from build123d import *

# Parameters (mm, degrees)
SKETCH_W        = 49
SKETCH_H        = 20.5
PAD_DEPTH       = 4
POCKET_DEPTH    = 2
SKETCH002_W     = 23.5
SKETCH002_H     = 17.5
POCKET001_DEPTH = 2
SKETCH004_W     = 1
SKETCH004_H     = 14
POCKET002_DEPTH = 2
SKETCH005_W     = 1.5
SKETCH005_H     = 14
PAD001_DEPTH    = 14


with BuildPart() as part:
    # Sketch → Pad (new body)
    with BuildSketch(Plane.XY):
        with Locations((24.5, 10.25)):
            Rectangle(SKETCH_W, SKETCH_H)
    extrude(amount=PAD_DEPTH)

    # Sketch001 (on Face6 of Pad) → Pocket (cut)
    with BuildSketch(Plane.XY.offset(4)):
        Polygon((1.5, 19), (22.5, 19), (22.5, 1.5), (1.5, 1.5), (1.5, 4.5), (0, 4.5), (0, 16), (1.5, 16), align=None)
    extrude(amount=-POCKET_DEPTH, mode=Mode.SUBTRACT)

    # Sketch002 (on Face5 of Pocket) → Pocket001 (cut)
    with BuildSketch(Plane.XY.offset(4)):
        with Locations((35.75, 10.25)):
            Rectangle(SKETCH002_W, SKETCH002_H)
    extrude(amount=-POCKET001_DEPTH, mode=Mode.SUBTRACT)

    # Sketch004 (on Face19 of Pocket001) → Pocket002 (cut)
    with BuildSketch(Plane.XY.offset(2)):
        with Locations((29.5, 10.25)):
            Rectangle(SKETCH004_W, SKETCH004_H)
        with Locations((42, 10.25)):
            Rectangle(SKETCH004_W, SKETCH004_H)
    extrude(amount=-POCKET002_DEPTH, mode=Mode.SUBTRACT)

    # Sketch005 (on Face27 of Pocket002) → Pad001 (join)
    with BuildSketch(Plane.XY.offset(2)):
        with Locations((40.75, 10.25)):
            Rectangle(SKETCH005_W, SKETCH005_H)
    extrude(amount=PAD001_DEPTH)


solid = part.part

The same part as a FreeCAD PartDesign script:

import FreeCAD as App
import Part
import Sketcher
Q = App.Units.Quantity

doc = App.newDocument("Part")
body = doc.addObject("PartDesign::Body", "Body")

# Sketch on XY plane
sketch1 = doc.addObject("Sketcher::SketchObject", "Sketch")
body.addObject(sketch1)
sketch1.AttachmentSupport = (doc.XY_Plane, [""])
sketch1.MapMode = "FlatFace"
sketch1.addGeometry([
    Part.LineSegment(App.Vector(0, 20, 0), App.Vector(0, 0, 0)),
    Part.LineSegment(App.Vector(0, 0, 0), App.Vector(49, 0, 0)),
    Part.LineSegment(App.Vector(49, 0, 0), App.Vector(49, 20, 0)),
    Part.LineSegment(App.Vector(49, 20, 0), App.Vector(0, 20, 0)),
], False)
sketch1.addConstraint([
    Sketcher.Constraint("Coincident", 0, 2, 1, 1),
    Sketcher.Constraint("Coincident", 1, 2, 2, 1),
    Sketcher.Constraint("Coincident", 2, 2, 3, 1),
    Sketcher.Constraint("Coincident", 3, 2, 0, 1),
    Sketcher.Constraint("Vertical", 0),
    Sketcher.Constraint("Horizontal", 1),
    Sketcher.Constraint("Vertical", 2),
    Sketcher.Constraint("Horizontal", 3),
    Sketcher.Constraint("Coincident", 0, 2, -1, 1),
    Sketcher.Constraint("DistanceX", 1, 1, 1, 2, Q("49 mm")),
    Sketcher.Constraint("DistanceY", 0, 2, 0, 1, Q("20.5 mm")),
])
pad1 = doc.addObject("PartDesign::Pad", "Pad")
body.addObject(pad1)
pad1.Profile = sketch1
pad1.Length = 4

# Sketch on XY plane
sketch2 = doc.addObject("Sketcher::SketchObject", "Sketch001")
body.addObject(sketch2)
sketch2.AttachmentSupport = (doc.XY_Plane, [""])
sketch2.MapMode = "FlatFace"
sketch2.AttachmentOffset = App.Placement(App.Vector(0, 0, 4), App.Rotation())
sketch2.addGeometry([
    Part.LineSegment(App.Vector(22.5, 19, 0), App.Vector(1.5, 19, 0)),  # 0
    Part.LineSegment(App.Vector(1.5, 19, 0), App.Vector(1.5, 16, 0)),  # 1
    Part.LineSegment(App.Vector(1.5, 16, 0), App.Vector(0, 16, 0)),  # 2
    Part.LineSegment(App.Vector(0, 16, 0), App.Vector(0, 4.5, 0)),  # 3
    Part.LineSegment(App.Vector(0, 4.5, 0), App.Vector(1.5, 4.5, 0)),  # 4
    Part.LineSegment(App.Vector(1.5, 4.5, 0), App.Vector(1.5, 1.5, 0)),  # 5
    Part.LineSegment(App.Vector(1.5, 1.5, 0), App.Vector(22.5, 1.5, 0)),  # 6
    Part.LineSegment(App.Vector(22.5, 1.5, 0), App.Vector(22.5, 19, 0)),  # 7
], False)
sketch2.addConstraint([
    Sketcher.Constraint("Coincident", 0, 2, 1, 1),
    Sketcher.Constraint("Coincident", 1, 2, 2, 1),
    Sketcher.Constraint("Coincident", 2, 2, 3, 1),
    Sketcher.Constraint("Coincident", 3, 2, 4, 1),
    Sketcher.Constraint("Coincident", 4, 2, 5, 1),
    Sketcher.Constraint("Coincident", 5, 2, 6, 1),
    Sketcher.Constraint("Coincident", 6, 2, 7, 1),
    Sketcher.Constraint("Coincident", 7, 2, 0, 1),
    Sketcher.Constraint("Horizontal", 0),
    Sketcher.Constraint("Vertical", 1),
    Sketcher.Constraint("Horizontal", 2),
    Sketcher.Constraint("Vertical", 3),
    Sketcher.Constraint("Horizontal", 4),
    Sketcher.Constraint("Vertical", 5),
    Sketcher.Constraint("Horizontal", 6),
    Sketcher.Constraint("Vertical", 7),
    Sketcher.Constraint("PointOnObject", 2, 2, -2),
    Sketcher.Constraint("Vertical", 1, 2, 4, 2),
    Sketcher.Constraint("Equal", 1, 5),
    Sketcher.Constraint("DistanceX", 0, 2, 0, 1, Q("21 mm")),
    Sketcher.Constraint("DistanceY", 1, 2, 1, 1, Q("3 mm")),
    Sketcher.Constraint("DistanceX", 2, 2, 2, 1, Q("1.5 mm")),
    Sketcher.Constraint("DistanceY", 3, 2, 3, 1, Q("11.5 mm")),
    Sketcher.Constraint("DistanceY", -1, 1, 0, 2, Q("19 mm")),
])
pocket1 = doc.addObject("PartDesign::Pocket", "Pocket")
body.addObject(pocket1)
pocket1.Profile = sketch2
pocket1.Length = 2

# Sketch on XY plane
sketch3 = doc.addObject("Sketcher::SketchObject", "Sketch002")
body.addObject(sketch3)
sketch3.AttachmentSupport = (doc.XY_Plane, [""])
sketch3.MapMode = "FlatFace"
sketch3.AttachmentOffset = App.Placement(App.Vector(0, 0, 4), App.Rotation())
sketch3.addGeometry([
    Part.LineSegment(App.Vector(24, 19, 0), App.Vector(24, 2, 0)),
    Part.LineSegment(App.Vector(24, 2, 0), App.Vector(48, 2, 0)),
    Part.LineSegment(App.Vector(48, 2, 0), App.Vector(48, 19, 0)),
    Part.LineSegment(App.Vector(48, 19, 0), App.Vector(24, 19, 0)),
], False)
sketch3.addConstraint([
    Sketcher.Constraint("Coincident", 0, 2, 1, 1),
    Sketcher.Constraint("Coincident", 1, 2, 2, 1),
    Sketcher.Constraint("Coincident", 2, 2, 3, 1),
    Sketcher.Constraint("Coincident", 3, 2, 0, 1),
    Sketcher.Constraint("Vertical", 0),
    Sketcher.Constraint("Horizontal", 1),
    Sketcher.Constraint("Vertical", 2),
    Sketcher.Constraint("Horizontal", 3),
    Sketcher.Constraint("DistanceX", 1, 1, 1, 2, Q("23.5 mm")),
    Sketcher.Constraint("DistanceY", 0, 2, 0, 1, Q("17.5 mm")),
    Sketcher.Constraint("DistanceX", -1, 1, 0, 2, Q("24 mm")),
    Sketcher.Constraint("DistanceY", -1, 1, 2, 2, Q("19 mm")),
])
pocket2 = doc.addObject("PartDesign::Pocket", "Pocket001")
body.addObject(pocket2)
pocket2.Profile = sketch3
pocket2.Length = 2

# Sketch on XY plane
sketch4 = doc.addObject("Sketcher::SketchObject", "Sketch003")
body.addObject(sketch4)
sketch4.AttachmentSupport = (doc.XY_Plane, [""])
sketch4.MapMode = "FlatFace"
sketch4.AttachmentOffset = App.Placement(App.Vector(0, 0, 2), App.Rotation())
sketch4.addGeometry([
    Part.LineSegment(App.Vector(29, 17.2, 0), App.Vector(29, 3.2, 0)),  # 0
    Part.LineSegment(App.Vector(29, 3.2, 0), App.Vector(30, 3.2, 0)),  # 1
    Part.LineSegment(App.Vector(30, 3.2, 0), App.Vector(30, 17.2, 0)),  # 2
    Part.LineSegment(App.Vector(30, 17.2, 0), App.Vector(29, 17.2, 0)),  # 3
    Part.LineSegment(App.Vector(41.5, 17.2, 0), App.Vector(41.5, 3.2, 0)),  # 4
    Part.LineSegment(App.Vector(41.5, 3.2, 0), App.Vector(42.5, 3.2, 0)),  # 5
    Part.LineSegment(App.Vector(42.5, 3.2, 0), App.Vector(42.5, 17.2, 0)),  # 6
    Part.LineSegment(App.Vector(42.5, 17.2, 0), App.Vector(41.5, 17.2, 0)),  # 7
], False)
sketch4.addConstraint([
    Sketcher.Constraint("Coincident", 0, 2, 1, 1),
    Sketcher.Constraint("Coincident", 1, 2, 2, 1),
    Sketcher.Constraint("Coincident", 2, 2, 3, 1),
    Sketcher.Constraint("Coincident", 3, 2, 0, 1),
    Sketcher.Constraint("Coincident", 4, 2, 5, 1),
    Sketcher.Constraint("Coincident", 5, 2, 6, 1),
    Sketcher.Constraint("Coincident", 6, 2, 7, 1),
    Sketcher.Constraint("Coincident", 7, 2, 4, 1),
    Sketcher.Constraint("Vertical", 0),
    Sketcher.Constraint("Horizontal", 1),
    Sketcher.Constraint("Vertical", 2),
    Sketcher.Constraint("Horizontal", 3),
    Sketcher.Constraint("Vertical", 4),
    Sketcher.Constraint("Horizontal", 5),
    Sketcher.Constraint("Vertical", 6),
    Sketcher.Constraint("Horizontal", 7),
    Sketcher.Constraint("Horizontal", 1, 2, 4, 2),
    Sketcher.Constraint("Horizontal", 3, 2, 6, 2),
    Sketcher.Constraint("Equal", 3, 5),
    Sketcher.Constraint("DistanceX", 1, 1, 1, 2, Q("1 mm")),
    Sketcher.Constraint("DistanceY", 0, 2, 0, 1, Q("14 mm")),
    Sketcher.Constraint("DistanceX", -1, 1, 0, 2, Q("29 mm")),
    Sketcher.Constraint("DistanceX", -1, 1, 4, 2, Q("41.5 mm")),
    Sketcher.Constraint("DistanceY", -1, 1, 0, 2, Q("3.25 mm")),
])
pocket3 = doc.addObject("PartDesign::Pocket", "Pocket002")
body.addObject(pocket3)
pocket3.Profile = sketch4
pocket3.Length = 2

# Sketch on XY plane
sketch5 = doc.addObject("Sketcher::SketchObject", "Sketch004")
body.addObject(sketch5)
sketch5.AttachmentSupport = (doc.XY_Plane, [""])
sketch5.MapMode = "FlatFace"
sketch5.AttachmentOffset = App.Placement(App.Vector(0, 0, 2), App.Rotation())
sketch5.addGeometry([
    Part.LineSegment(App.Vector(40, 17.2, 0), App.Vector(40, 3.2, 0)),
    Part.LineSegment(App.Vector(40, 3.2, 0), App.Vector(41.5, 3.2, 0)),
    Part.LineSegment(App.Vector(41.5, 3.2, 0), App.Vector(41.5, 17.2, 0)),
    Part.LineSegment(App.Vector(41.5, 17.2, 0), App.Vector(40, 17.2, 0)),
], False)
sketch5.addConstraint([
    Sketcher.Constraint("Coincident", 0, 2, 1, 1),
    Sketcher.Constraint("Coincident", 1, 2, 2, 1),
    Sketcher.Constraint("Coincident", 2, 2, 3, 1),
    Sketcher.Constraint("Coincident", 3, 2, 0, 1),
    Sketcher.Constraint("Vertical", 0),
    Sketcher.Constraint("Horizontal", 1),
    Sketcher.Constraint("Vertical", 2),
    Sketcher.Constraint("Horizontal", 3),
    Sketcher.Constraint("DistanceY", 0, 2, 0, 1, Q("14 mm")),
    Sketcher.Constraint("DistanceX", 1, 1, 1, 2, Q("1.5 mm")),
    Sketcher.Constraint("DistanceX", -1, 1, 0, 2, Q("40 mm")),
    Sketcher.Constraint("DistanceY", -1, 1, 0, 2, Q("3.25 mm")),
])
pad2 = doc.addObject("PartDesign::Pad", "Pad001")
body.addObject(pad2)
pad2.Profile = sketch5
pad2.Length = 14

doc.recompute()
